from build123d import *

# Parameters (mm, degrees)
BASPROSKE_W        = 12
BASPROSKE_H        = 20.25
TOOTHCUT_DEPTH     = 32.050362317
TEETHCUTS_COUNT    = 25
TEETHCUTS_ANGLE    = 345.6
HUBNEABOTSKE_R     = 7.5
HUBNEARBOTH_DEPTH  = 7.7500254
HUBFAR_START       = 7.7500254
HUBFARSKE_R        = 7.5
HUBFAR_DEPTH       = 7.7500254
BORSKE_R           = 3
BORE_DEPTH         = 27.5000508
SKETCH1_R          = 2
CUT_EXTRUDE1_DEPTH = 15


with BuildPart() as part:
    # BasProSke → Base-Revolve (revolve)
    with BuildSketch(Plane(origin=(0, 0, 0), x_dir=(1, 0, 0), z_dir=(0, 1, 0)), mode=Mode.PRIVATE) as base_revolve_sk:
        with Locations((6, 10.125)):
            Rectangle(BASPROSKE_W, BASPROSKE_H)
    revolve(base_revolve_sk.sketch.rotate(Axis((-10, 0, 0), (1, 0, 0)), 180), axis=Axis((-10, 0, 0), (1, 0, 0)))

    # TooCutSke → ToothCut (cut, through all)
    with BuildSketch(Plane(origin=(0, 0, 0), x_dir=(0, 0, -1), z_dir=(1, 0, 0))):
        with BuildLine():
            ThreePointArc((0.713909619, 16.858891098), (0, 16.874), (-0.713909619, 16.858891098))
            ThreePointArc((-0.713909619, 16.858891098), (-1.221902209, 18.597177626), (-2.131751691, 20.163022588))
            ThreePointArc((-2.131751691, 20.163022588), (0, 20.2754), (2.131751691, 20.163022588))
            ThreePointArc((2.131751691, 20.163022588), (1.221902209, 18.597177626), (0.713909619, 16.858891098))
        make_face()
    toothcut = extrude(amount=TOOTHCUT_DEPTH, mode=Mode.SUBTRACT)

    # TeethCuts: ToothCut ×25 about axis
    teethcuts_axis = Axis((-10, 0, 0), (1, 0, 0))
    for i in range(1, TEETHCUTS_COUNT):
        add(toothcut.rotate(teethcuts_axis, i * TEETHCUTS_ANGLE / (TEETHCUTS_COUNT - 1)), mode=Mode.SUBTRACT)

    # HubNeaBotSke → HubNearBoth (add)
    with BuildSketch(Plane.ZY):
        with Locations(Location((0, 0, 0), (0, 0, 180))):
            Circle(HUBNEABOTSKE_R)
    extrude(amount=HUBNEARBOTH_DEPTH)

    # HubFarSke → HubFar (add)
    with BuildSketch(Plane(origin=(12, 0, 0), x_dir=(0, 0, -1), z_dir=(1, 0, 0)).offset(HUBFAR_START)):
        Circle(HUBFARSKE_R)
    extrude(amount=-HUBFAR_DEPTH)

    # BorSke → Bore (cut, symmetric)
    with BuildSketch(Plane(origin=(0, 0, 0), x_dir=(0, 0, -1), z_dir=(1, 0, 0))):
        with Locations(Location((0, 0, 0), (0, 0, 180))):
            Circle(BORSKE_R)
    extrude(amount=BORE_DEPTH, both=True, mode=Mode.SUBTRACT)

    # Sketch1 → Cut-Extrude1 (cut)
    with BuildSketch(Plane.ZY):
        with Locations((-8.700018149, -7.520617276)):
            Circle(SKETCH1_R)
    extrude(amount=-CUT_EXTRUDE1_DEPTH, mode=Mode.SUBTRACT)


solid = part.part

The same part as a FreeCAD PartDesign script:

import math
import FreeCAD as App
import Part
import Sketcher
Q = App.Units.Quantity

doc = App.newDocument("Part")
body = doc.addObject("PartDesign::Body", "Body")

sketch1 = doc.addObject("Sketcher::SketchObject", "Sketch")
body.addObject(sketch1)
sketch1.AttachmentSupport = (doc.XZ_Plane, [""])
sketch1.MapMode = "FlatFace"
sketch1.addGeometry([
    Part.LineSegment(App.Vector(0, -20, 0), App.Vector(0, 0, 0)),
    Part.LineSegment(App.Vector(0, 0, 0), App.Vector(12, 0, 0)),
    Part.LineSegment(App.Vector(12, 0, 0), App.Vector(12, -20, 0)),
    Part.LineSegment(App.Vector(12, -20, 0), App.Vector(0, -20, 0)),
], False)
sketch1.addConstraint([
    Sketcher.Constraint("Coincident", 0, 2, 1, 1),
    Sketcher.Constraint("Coincident", 1, 2, 2, 1),
    Sketcher.Constraint("Coincident", 2, 2, 3, 1),
    Sketcher.Constraint("Coincident", 3, 2, 0, 1),
    Sketcher.Constraint("Vertical", 0),
    Sketcher.Constraint("Horizontal", 1),
    Sketcher.Constraint("Vertical", 2),
    Sketcher.Constraint("Horizontal", 3),
    Sketcher.Constraint("Coincident", 0, 2, -1, 1),
    Sketcher.Constraint("DistanceX", 1, 1, 1, 2, Q("12 mm")),
    Sketcher.Constraint("DistanceY", 0, 1, 0, 2, Q("20.25 mm")),
])
revolution = doc.addObject("PartDesign::Revolution", "Revolution")
body.addObject(revolution)
revolution.Profile = sketch1
revolution.ReferenceAxis = (sketch1, ["H_Axis"])
revolution.Angle = 360

sketch2 = doc.addObject("Sketcher::SketchObject", "Sketch001")
body.addObject(sketch2)
sketch2.AttachmentSupport = (doc.YZ_Plane, [""])
sketch2.MapMode = "FlatFace"
sketch2.addGeometry([
    Part.ArcOfCircle(Part.Circle(App.Vector(0, 0, 0), App.Vector(0, 0, 1), 16.9), math.radians(-2.42), math.radians(2.42)),
    Part.ArcOfCircle(Part.Circle(App.Vector(15.6, -8.1, 0), App.Vector(0, 0, 1), 7.5), math.radians(53), math.radians(81)),
    Part.ArcOfCircle(Part.Circle(App.Vector(0, 0, 0), App.Vector(0, 0, 1), 20.3), math.radians(-6.04), math.radians(6.04)),
    Part.ArcOfCircle(Part.Circle(App.Vector(15.6, 8.1, 0), App.Vector(0, 0, 1), 7.5), math.radians(-81), math.radians(-53)),
], False)
sketch2.addConstraint([
    Sketcher.Constraint("Coincident", 0, 1, 1, 2),
    Sketcher.Constraint("Coincident", 1, 1, 2, 1),
    Sketcher.Constraint("Coincident", 2, 2, 3, 2),
    Sketcher.Constraint("Coincident", 3, 1, 0, 2),
    Sketcher.Constraint("Coincident", 0, 3, -1, 1),
    Sketcher.Constraint("Coincident", 2, 3, -1, 1),
    Sketcher.Constraint("Equal", 1, 3),
    Sketcher.Constraint("Symmetric", 1, 3, 3, 3, -1),
    Sketcher.Constraint("Radius", 1, Q("7.5 mm")),
    Sketcher.Constraint("Radius", 0, Q("16.874 mm")),
    Sketcher.Constraint("Radius", 2, Q("20.2754 mm")),
    Sketcher.Constraint("DistanceY", 1, 3, -1, 1, Q("8.114141 mm")),
    Sketcher.Constraint("DistanceX", -1, 1, 0, 1, Q("16.858891 mm")),
])
pocket1 = doc.addObject("PartDesign::Pocket", "Pocket")
body.addObject(pocket1)
pocket1.Profile = sketch2
pocket1.Type = "ThroughAll"
pocket1.Reversed = True
doc.recompute()

polarpattern = doc.addObject("PartDesign::PolarPattern", "PolarPattern")
body.addObject(polarpattern)
polarpattern.Originals = [pocket1]
polarpattern.Axis = (doc.X_Axis, [""])
polarpattern.Angle = 360
polarpattern.Occurrences = 25
body.Tip = polarpattern

sketch3 = doc.addObject("Sketcher::SketchObject", "Sketch002")
body.addObject(sketch3)
sketch3.AttachmentSupport = (doc.YZ_Plane, [""])
sketch3.MapMode = "FlatFace"
sketch3.addGeometry(Part.Circle(App.Vector(0, 0, 0), App.Vector(0, 0, 1), 8), False)
sketch3.addConstraint([
    Sketcher.Constraint("Coincident", 0, 3, -1, 1),
    Sketcher.Constraint("Diameter", 0, Q("15 mm")),
])
pad1 = doc.addObject("PartDesign::Pad", "Pad")
body.addObject(pad1)
pad1.Profile = sketch3
pad1.Length = 7.750025
pad1.Reversed = True

sketch4 = doc.addObject("Sketcher::SketchObject", "Sketch003")
body.addObject(sketch4)
sketch4.AttachmentSupport = (doc.YZ_Plane, [""])
sketch4.MapMode = "FlatFace"
sketch4.AttachmentOffset = App.Placement(App.Vector(0, 0, 19.750025), App.Rotation())
sketch4.addGeometry(Part.Circle(App.Vector(0, 0, 0), App.Vector(0, 0, 1), 8), False)
sketch4.addConstraint([
    Sketcher.Constraint("Coincident", 0, 3, -1, 1),
    Sketcher.Constraint("Diameter", 0, Q("15 mm")),
])
pad2 = doc.addObject("PartDesign::Pad", "Pad001")
body.addObject(pad2)
pad2.Profile = sketch4
pad2.Length = 7.750025
pad2.Reversed = True

sketch5 = doc.addObject("Sketcher::SketchObject", "Sketch004")
body.addObject(sketch5)
sketch5.AttachmentSupport = (doc.YZ_Plane, [""])
sketch5.MapMode = "FlatFace"
sketch5.addGeometry(Part.Circle(App.Vector(0, 0, 0), App.Vector(0, 0, 1), 3), False)
sketch5.addConstraint([
    Sketcher.Constraint("Coincident", 0, 3, -1, 1),
    Sketcher.Constraint("Diameter", 0, Q("6 mm")),
])
pocket2 = doc.addObject("PartDesign::Pocket", "Pocket001")
body.addObject(pocket2)
pocket2.Profile = sketch5
pocket2.Length = 55.000102
pocket2.Midplane = True

sketch6 = doc.addObject("Sketcher::SketchObject", "Sketch005")
body.addObject(sketch6)
sketch6.AttachmentSupport = (doc.YZ_Plane, [""])
sketch6.MapMode = "FlatFace"
sketch6.addGeometry(Part.Circle(App.Vector(-7.5, -8.7, 0), App.Vector(0, 0, 1), 2), False)
sketch6.addConstraint([
    Sketcher.Constraint("Diameter", 0, Q("4 mm")),
    Sketcher.Constraint("DistanceY", 0, 3, -1, 1, Q("8.700018 mm")),
    Sketcher.Constraint("DistanceX", 0, 3, -1, 1, Q("7.520617 mm")),
])
pocket3 = doc.addObject("PartDesign::Pocket", "Pocket002")
body.addObject(pocket3)
pocket3.Profile = sketch6
pocket3.Length = 15
pocket3.Reversed = True

doc.recompute()
